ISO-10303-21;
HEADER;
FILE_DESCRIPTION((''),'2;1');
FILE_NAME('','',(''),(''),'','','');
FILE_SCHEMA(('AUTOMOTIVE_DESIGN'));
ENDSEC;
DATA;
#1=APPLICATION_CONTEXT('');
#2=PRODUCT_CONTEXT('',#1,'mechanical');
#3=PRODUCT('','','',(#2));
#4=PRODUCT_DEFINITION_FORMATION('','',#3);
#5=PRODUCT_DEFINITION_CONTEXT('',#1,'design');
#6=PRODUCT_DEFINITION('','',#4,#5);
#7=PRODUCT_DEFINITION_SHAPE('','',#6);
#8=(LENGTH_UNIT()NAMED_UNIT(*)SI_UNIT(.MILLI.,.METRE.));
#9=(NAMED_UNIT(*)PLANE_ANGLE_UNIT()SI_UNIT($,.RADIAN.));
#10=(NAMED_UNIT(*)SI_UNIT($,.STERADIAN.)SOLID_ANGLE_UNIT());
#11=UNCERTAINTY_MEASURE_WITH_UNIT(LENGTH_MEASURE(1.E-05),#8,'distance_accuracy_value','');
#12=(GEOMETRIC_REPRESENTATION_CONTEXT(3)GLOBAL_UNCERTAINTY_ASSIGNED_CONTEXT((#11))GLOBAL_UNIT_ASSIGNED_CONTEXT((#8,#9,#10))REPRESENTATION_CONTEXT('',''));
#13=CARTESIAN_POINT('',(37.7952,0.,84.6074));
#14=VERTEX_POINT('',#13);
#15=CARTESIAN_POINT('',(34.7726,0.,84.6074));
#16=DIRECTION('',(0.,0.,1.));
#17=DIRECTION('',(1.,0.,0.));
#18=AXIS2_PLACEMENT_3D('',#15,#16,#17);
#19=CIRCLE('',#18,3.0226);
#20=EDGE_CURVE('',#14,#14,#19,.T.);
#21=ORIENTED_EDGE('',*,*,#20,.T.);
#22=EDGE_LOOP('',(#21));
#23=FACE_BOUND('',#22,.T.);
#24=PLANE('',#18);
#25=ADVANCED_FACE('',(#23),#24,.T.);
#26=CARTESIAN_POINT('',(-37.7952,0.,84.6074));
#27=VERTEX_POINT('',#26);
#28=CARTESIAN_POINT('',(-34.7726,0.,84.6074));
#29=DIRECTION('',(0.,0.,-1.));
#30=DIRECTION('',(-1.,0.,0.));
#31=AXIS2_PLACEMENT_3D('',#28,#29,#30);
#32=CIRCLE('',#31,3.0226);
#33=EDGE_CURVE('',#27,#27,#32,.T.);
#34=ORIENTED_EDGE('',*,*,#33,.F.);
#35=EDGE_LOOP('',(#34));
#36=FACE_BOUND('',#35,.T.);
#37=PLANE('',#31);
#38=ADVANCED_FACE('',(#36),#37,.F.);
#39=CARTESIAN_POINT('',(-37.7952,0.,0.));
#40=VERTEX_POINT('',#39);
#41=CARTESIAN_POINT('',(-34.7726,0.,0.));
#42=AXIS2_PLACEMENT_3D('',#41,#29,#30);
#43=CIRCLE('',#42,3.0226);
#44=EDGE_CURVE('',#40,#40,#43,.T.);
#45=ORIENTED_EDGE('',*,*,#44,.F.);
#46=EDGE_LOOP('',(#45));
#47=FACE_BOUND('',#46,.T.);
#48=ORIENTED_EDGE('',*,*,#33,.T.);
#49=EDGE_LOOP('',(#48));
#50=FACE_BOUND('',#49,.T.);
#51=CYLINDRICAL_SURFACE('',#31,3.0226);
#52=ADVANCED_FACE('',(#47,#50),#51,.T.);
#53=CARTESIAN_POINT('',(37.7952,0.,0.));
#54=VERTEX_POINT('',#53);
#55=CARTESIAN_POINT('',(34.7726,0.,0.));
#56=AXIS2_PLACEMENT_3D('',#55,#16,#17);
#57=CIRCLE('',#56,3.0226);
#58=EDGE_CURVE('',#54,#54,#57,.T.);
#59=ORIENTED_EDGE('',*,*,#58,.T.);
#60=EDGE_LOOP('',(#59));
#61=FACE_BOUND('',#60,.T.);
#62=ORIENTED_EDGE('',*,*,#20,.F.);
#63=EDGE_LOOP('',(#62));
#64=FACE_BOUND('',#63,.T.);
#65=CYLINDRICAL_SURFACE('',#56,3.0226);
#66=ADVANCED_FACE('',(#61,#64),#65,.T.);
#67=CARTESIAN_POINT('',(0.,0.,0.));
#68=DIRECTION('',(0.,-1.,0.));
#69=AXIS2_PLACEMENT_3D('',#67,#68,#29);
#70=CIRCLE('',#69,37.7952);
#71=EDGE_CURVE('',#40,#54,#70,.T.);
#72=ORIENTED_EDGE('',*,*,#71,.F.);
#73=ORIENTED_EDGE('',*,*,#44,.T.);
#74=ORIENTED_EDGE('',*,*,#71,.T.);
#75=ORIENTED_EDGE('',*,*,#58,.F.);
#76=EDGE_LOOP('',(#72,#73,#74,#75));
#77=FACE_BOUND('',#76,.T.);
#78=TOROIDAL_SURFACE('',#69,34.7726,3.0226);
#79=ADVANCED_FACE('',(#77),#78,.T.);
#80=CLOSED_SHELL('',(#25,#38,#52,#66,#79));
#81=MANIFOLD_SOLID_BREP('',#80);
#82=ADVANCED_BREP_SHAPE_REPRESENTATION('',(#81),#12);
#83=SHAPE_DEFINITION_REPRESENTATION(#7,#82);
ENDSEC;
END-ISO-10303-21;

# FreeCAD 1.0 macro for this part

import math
import FreeCAD as App
import Part
import Sketcher
Q = App.Units.Quantity

doc = App.newDocument("Part")
params = doc.addObject("Spreadsheet::Sheet", "Params")
for row, (alias, value) in enumerate([
    ("sketch1_diameter", "0.238 in"),
    ("sketch2_radius", "1.369 in"),
    ("sketch2_height", "3.331 in"),
], start=1):
    params.set(f"A{row}", alias)
    params.set(f"B{row}", "=" + value)
    params.setAlias(f"B{row}", alias)

body = doc.addObject("PartDesign::Body", "Body")

sketch1 = body.newObject("Sketcher::SketchObject", "Sketch")
sketch1.AttachmentSupport = (doc.getObject("XY_Plane"), [""])
sketch1.MapMode = "FlatFace"
sketch1.AttachmentOffset = App.Placement(App.Vector(0, 0, 3.331 * 25.4), App.Rotation())
sketch1.addGeometry(Part.Circle(App.Vector(34.7726, 0, 0), App.Vector(0, 0, 1), 3.0226), False)
sketch1.addConstraint(Sketcher.Constraint("PointOnObject", 0, 3, -1))
sketch1.addConstraint(Sketcher.Constraint("Diameter", 0, Q("0.238 in")))
sketch1.addConstraint(Sketcher.Constraint("DistanceX", -1, 1, 0, 3, Q("1.369 in")))
sketch1.setExpression("Constraints[1]", "Params.sketch1_diameter")

sketch2 = body.newObject("Sketcher::SketchObject", "Sketch001")
sketch2.AttachmentSupport = (doc.getObject("XZ_Plane"), [""])
sketch2.MapMode = "FlatFace"
sketch2.addGeometry(Part.LineSegment(App.Vector(-34.7726, 84.6074, 0), App.Vector(-34.7726, 0, 0)), False)
sketch2.addGeometry(Part.ArcOfCircle(Part.Circle(App.Vector(0, 0, 0), App.Vector(0, 0, 1), 34.7726), math.radians(180), math.radians(360)), False)
sketch2.addGeometry(Part.LineSegment(App.Vector(34.7726, 0, 0), App.Vector(34.7726, 84.6074, 0)), False)
sketch2.addConstraint(Sketcher.Constraint("Tangent", 0, 2, 1, 1))
sketch2.addConstraint(Sketcher.Constraint("Tangent", 1, 2, 2, 1))
sketch2.addConstraint(Sketcher.Constraint("Vertical", 0))
sketch2.addConstraint(Sketcher.Constraint("Vertical", 2))
sketch2.addConstraint(Sketcher.Constraint("Coincident", 1, 3, -1, 1))
sketch2.addConstraint(Sketcher.Constraint("Horizontal", 0, 1, 2, 2))
sketch2.addConstraint(Sketcher.Constraint("Radius", 1, Q("1.369 in")))
sketch2.addConstraint(Sketcher.Constraint("DistanceY", 0, 2, 0, 1, Q("3.331 in")))
sketch2.setExpression("Constraints[6]", "Params.sketch2_radius")
sketch2.setExpression("Constraints[7]", "Params.sketch2_height")
doc.recompute()

additivepipe = body.newObject("PartDesign::AdditivePipe", "AdditivePipe")
additivepipe.Profile = sketch1
additivepipe.Spine = (sketch2, ["Edge1", "Edge2", "Edge3"])

doc.recompute()
